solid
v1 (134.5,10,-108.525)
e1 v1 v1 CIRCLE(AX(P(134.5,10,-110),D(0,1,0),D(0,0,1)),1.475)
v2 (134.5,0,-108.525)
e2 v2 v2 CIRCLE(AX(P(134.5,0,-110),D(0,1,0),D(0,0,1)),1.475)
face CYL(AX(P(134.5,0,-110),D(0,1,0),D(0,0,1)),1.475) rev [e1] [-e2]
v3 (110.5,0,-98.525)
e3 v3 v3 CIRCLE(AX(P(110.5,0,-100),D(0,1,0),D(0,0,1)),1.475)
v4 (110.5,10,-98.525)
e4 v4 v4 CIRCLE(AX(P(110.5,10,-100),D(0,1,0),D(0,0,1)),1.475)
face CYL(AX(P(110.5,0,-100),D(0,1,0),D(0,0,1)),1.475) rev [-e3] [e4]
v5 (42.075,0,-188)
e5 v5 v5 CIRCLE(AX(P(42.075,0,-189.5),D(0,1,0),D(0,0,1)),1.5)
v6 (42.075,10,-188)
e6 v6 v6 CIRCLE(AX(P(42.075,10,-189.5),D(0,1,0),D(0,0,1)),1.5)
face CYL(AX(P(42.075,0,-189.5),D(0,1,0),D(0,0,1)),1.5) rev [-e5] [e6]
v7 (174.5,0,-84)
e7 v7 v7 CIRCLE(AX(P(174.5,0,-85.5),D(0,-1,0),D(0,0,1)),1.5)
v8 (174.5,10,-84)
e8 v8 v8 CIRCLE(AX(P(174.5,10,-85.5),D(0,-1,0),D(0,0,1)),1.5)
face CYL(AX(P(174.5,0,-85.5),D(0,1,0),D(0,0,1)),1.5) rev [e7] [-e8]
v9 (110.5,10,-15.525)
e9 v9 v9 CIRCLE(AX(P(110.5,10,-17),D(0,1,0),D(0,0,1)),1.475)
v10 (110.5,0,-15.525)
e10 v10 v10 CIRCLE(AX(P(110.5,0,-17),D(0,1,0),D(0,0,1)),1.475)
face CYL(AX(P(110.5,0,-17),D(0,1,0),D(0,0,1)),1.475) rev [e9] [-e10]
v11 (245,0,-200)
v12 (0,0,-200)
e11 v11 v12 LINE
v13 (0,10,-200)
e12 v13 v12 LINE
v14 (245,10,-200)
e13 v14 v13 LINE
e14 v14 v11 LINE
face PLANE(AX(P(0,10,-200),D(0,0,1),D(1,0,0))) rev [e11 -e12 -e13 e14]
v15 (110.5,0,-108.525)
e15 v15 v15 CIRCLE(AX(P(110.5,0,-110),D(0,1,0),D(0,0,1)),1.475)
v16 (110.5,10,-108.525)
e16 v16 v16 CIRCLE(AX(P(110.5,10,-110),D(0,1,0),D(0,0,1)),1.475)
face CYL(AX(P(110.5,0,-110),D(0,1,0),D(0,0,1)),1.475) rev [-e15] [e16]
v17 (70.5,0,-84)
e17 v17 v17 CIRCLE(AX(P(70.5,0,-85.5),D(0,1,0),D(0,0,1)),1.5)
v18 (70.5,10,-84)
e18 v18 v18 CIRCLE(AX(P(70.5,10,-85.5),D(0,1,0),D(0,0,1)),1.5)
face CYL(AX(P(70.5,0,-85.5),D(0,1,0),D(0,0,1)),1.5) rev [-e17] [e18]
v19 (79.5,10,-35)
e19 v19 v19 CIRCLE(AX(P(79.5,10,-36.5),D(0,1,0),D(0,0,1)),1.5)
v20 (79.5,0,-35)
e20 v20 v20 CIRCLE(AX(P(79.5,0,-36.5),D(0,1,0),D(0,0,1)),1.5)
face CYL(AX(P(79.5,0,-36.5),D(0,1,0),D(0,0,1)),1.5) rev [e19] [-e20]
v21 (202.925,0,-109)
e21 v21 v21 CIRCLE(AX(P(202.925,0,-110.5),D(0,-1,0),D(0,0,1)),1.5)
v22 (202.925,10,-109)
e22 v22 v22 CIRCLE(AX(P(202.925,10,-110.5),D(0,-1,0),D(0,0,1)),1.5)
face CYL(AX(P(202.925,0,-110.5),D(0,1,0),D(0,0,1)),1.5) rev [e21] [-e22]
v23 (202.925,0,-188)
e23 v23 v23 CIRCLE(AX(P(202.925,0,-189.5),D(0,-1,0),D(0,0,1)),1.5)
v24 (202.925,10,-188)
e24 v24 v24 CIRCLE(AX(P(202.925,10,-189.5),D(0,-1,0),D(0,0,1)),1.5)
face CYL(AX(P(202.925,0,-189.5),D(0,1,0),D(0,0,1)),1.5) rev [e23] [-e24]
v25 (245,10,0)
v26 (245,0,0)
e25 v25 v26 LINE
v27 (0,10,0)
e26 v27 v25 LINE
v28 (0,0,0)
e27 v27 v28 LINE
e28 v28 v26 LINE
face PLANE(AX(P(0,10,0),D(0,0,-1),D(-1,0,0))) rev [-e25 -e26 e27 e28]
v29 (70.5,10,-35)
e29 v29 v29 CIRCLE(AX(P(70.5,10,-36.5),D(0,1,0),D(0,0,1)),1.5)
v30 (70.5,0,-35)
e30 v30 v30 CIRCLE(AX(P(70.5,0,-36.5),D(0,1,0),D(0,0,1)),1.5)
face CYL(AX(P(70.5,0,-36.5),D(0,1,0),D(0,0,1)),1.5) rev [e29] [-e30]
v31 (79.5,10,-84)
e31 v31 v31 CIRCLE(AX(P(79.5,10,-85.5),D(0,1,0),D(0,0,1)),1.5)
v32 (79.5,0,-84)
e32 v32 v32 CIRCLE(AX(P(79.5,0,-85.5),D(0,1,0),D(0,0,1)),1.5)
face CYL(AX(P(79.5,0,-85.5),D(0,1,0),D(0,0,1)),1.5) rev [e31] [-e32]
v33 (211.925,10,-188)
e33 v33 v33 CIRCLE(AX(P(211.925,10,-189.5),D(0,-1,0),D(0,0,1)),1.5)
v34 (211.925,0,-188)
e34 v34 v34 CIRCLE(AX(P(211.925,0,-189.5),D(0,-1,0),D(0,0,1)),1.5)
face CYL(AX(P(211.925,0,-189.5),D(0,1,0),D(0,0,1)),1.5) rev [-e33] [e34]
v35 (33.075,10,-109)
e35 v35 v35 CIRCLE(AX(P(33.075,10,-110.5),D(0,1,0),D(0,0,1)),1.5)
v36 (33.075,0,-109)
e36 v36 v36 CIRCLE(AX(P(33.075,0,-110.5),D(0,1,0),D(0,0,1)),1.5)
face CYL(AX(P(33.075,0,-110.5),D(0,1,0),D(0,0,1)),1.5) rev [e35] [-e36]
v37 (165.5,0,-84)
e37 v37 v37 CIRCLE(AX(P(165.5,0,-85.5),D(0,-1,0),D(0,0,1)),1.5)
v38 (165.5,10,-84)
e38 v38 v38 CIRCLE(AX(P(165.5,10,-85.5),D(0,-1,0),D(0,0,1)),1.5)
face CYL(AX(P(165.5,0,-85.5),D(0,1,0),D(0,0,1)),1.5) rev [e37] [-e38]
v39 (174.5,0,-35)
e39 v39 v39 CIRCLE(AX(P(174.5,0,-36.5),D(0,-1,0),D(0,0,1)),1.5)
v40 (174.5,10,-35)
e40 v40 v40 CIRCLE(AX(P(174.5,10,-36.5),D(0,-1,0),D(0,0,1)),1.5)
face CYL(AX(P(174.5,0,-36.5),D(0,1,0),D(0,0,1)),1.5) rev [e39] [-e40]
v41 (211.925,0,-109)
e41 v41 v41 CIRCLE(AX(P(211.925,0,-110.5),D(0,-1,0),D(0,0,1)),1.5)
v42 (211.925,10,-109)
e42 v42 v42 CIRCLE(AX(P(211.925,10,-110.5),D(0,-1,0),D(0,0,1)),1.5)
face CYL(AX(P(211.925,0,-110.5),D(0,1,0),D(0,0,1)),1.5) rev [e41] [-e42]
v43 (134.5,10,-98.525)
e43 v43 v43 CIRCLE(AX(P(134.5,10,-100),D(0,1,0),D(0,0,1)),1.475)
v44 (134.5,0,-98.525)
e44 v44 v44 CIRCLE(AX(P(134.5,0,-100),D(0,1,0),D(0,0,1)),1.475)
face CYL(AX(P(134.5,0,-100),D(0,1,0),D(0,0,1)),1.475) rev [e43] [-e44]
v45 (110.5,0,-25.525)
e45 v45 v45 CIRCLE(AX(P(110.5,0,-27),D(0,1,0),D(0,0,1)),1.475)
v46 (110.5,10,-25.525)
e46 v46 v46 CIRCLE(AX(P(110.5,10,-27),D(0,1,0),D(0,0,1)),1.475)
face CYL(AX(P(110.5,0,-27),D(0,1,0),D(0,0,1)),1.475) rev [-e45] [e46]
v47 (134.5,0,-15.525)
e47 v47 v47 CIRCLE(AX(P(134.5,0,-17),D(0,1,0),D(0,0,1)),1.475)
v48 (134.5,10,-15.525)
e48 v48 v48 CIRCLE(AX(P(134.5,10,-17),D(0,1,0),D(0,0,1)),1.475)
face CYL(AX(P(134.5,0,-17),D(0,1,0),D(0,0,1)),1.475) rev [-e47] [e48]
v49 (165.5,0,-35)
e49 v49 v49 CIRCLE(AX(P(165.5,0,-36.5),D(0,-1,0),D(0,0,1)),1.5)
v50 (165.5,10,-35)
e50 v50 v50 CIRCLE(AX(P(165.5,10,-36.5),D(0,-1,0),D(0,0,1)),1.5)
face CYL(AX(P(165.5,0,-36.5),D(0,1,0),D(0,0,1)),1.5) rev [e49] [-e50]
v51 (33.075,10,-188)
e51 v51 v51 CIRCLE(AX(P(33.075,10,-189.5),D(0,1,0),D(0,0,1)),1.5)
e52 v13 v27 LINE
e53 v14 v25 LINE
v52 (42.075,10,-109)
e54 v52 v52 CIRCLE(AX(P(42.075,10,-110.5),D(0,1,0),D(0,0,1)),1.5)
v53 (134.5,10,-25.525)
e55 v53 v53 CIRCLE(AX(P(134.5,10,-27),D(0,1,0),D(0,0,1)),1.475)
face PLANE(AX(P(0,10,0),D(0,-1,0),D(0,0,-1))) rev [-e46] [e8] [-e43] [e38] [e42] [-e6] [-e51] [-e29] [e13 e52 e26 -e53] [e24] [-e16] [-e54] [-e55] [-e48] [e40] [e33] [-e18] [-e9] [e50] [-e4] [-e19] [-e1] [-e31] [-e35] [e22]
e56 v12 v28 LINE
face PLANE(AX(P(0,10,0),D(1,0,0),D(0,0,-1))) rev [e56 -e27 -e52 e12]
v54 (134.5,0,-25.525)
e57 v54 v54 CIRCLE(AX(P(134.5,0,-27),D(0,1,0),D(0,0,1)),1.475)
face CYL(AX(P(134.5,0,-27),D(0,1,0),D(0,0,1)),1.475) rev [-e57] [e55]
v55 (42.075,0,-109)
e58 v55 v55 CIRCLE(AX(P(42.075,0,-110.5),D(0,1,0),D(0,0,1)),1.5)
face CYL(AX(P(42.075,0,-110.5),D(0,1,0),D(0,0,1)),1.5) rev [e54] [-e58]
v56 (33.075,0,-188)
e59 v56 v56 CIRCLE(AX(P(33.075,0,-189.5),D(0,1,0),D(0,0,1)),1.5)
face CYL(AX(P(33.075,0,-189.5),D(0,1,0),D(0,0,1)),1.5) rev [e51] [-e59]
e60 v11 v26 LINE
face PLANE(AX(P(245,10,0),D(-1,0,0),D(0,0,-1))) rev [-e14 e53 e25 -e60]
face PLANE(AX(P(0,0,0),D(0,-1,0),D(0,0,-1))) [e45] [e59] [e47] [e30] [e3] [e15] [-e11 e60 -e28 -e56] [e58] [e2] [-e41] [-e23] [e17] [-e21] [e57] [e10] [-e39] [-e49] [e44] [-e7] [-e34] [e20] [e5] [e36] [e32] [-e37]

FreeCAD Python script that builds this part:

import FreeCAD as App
import Part
import Sketcher

V = App.Vector
Q = App.Units.Quantity

doc = App.newDocument("Part")
body = doc.addObject("PartDesign::Body", "Body")

sketch1 = body.newObject("Sketcher::SketchObject", "Sketch")
sketch1.AttachmentSupport = (doc.getObject("XZ_Plane"), [""])
sketch1.MapMode = "FlatFace"
sketch1.addGeometry(Part.LineSegment(V(0, -200, 0), V(0, 0, 0)), False)
sketch1.addGeometry(Part.LineSegment(V(0, 0, 0), V(122, 0, 0)), False)
sketch1.addGeometry(Part.LineSegment(V(122, 0, 0), V(122, -200, 0)), False)
sketch1.addGeometry(Part.LineSegment(V(122, -200, 0), V(0, -200, 0)), False)
sketch1.addConstraint(Sketcher.Constraint("Coincident", 0, 2, 1, 1))
sketch1.addConstraint(Sketcher.Constraint("Coincident", 1, 2, 2, 1))
sketch1.addConstraint(Sketcher.Constraint("Coincident", 2, 2, 3, 1))
sketch1.addConstraint(Sketcher.Constraint("Coincident", 3, 2, 0, 1))
sketch1.addConstraint(Sketcher.Constraint("Vertical", 0))
sketch1.addConstraint(Sketcher.Constraint("Horizontal", 1))
sketch1.addConstraint(Sketcher.Constraint("Vertical", 2))
sketch1.addConstraint(Sketcher.Constraint("Horizontal", 3))
sketch1.addConstraint(Sketcher.Constraint("Coincident", 0, 2, -1, 1))
sketch1.addConstraint(Sketcher.Constraint("DistanceY", 0, 1, 0, 2, Q("200 mm")))
sketch1.addConstraint(Sketcher.Constraint("DistanceX", 1, 1, 1, 2, Q("122.5 mm")))
pad1 = body.newObject("PartDesign::Pad", "Pad")
pad1.Profile = sketch1
pad1.Length = 10
pad1.Reversed = True

sketch2 = body.newObject("Sketcher::SketchObject", "Sketch001")
sketch2.AttachmentSupport = (doc.getObject("XZ_Plane"), [""])
sketch2.MapMode = "FlatFace"
sketch2.AttachmentOffset = App.Placement(V(0, 0, -10), App.Rotation())
sketch2.addGeometry(Part.Circle(V(33.1, -189.5, 0), V(0, 0, 1), 1.5), False)
sketch2.addGeometry(Part.Circle(V(42.1, -189.5, 0), V(0, 0, 1), 1.5), False)
sketch2.addGeometry(Part.Circle(V(33.1, -110.5, 0), V(0, 0, 1), 1.5), False)
sketch2.addGeometry(Part.Circle(V(42.1, -110.5, 0), V(0, 0, 1), 1.5), False)
sketch2.addGeometry(Part.Circle(V(70.5, -85.5, 0), V(0, 0, 1), 1.5), False)
sketch2.addGeometry(Part.Circle(V(79.5, -85.5, 0), V(0, 0, 1), 1.5), False)
sketch2.addGeometry(Part.Circle(V(70.5, -36.5, 0), V(0, 0, 1), 1.5), False)
sketch2.addGeometry(Part.Circle(V(79.5, -36.5, 0), V(0, 0, 1), 1.5), False)
sketch2.addConstraint(Sketcher.Constraint("Equal", 0, 1))
sketch2.addConstraint(Sketcher.Constraint("Equal", 1, 2))
sketch2.addConstraint(Sketcher.Constraint("Equal", 2, 3))
sketch2.addConstraint(Sketcher.Constraint("Equal", 3, 4))
sketch2.addConstraint(Sketcher.Constraint("Equal", 4, 5))
sketch2.addConstraint(Sketcher.Constraint("Equal", 5, 6))
sketch2.addConstraint(Sketcher.Constraint("Equal", 6, 7))
sketch2.addConstraint(Sketcher.Constraint("Horizontal", 0, 3, 1, 3))
sketch2.addConstraint(Sketcher.Constraint("Horizontal", 2, 3, 3, 3))
sketch2.addConstraint(Sketcher.Constraint("Horizontal", 4, 3, 5, 3))
sketch2.addConstraint(Sketcher.Constraint("Horizontal", 6, 3, 7, 3))
sketch2.addConstraint(Sketcher.Constraint("Vertical", 0, 3, 2, 3))
sketch2.addConstraint(Sketcher.Constraint("Vertical", 1, 3, 3, 3))
sketch2.addConstraint(Sketcher.Constraint("Vertical", 4, 3, 6, 3))
sketch2.addConstraint(Sketcher.Constraint("Vertical", 5, 3, 7, 3))
sketch2.addConstraint(Sketcher.Constraint("Diameter", 0, Q("3 mm")))
sketch2.addConstraint(Sketcher.Constraint("DistanceX", 0, 3, 1, 3, Q("9 mm")))
sketch2.addConstraint(Sketcher.Constraint("DistanceY", 0, 3, 2, 3, Q("79 mm")))
sketch2.addConstraint(Sketcher.Constraint("DistanceY", 3, 3, 4, 3, Q("25 mm")))
sketch2.addConstraint(Sketcher.Constraint("DistanceX", 4, 3, 5, 3, Q("9 mm")))
sketch2.addConstraint(Sketcher.Constraint("DistanceY", 4, 3, 6, 3, Q("49 mm")))
sketch2.addConstraint(Sketcher.Constraint("DistanceY", 0, 3, -1, 1, Q("189.5 mm")))
sketch2.addConstraint(Sketcher.Constraint("DistanceX", -1, 1, 4, 3, Q("70.5 mm")))
sketch2.addConstraint(Sketcher.Constraint("DistanceX", -1, 1, 0, 3, Q("33.075 mm")))
pocket1 = body.newObject("PartDesign::Pocket", "Pocket")
pocket1.Profile = sketch2
pocket1.Length = 10
pocket1.Reversed = True
body2 = doc.addObject("PartDesign::Body", "Body001")
doc.recompute()

body2.BaseFeature = body
doc.recompute()

mirroring = doc.addObject("Part::Mirroring", "Mirroring")
mirroring.Source = body
mirroring.Base = V(122.5, 10, 0)
mirroring.Normal = V(-1, 0, 0)
body3 = doc.addObject("PartDesign::Body", "Body002")
body3.BaseFeature = mirroring
boolean = body2.newObject("PartDesign::Boolean", "Boolean")
boolean.Type = "Fuse"
boolean.addObjects([body3])
doc.recompute()

sketch3 = body2.newObject("Sketcher::SketchObject", "Sketch002")
sketch3.AttachmentSupport = (doc.getObject("XZ_Plane001"), [""])
sketch3.MapMode = "FlatFace"
sketch3.AttachmentOffset = App.Placement(V(0, 0, -10), App.Rotation())
sketch3.addGeometry(Part.Circle(V(134.5, -110, 0), V(0, 0, 1), 1.5), False)
sketch3.addGeometry(Part.Circle(V(110.5, -110, 0), V(0, 0, 1), 1.5), False)
sketch3.addGeometry(Part.Circle(V(110.5, -100, 0), V(0, 0, 1), 1.5), False)
sketch3.addGeometry(Part.Circle(V(134.5, -100, 0), V(0, 0, 1), 1.5), False)
sketch3.addGeometry(Part.Circle(V(110.5, -27, 0), V(0, 0, 1), 1.5), False)
sketch3.addGeometry(Part.Circle(V(134.5, -27, 0), V(0, 0, 1), 1.5), False)
sketch3.addGeometry(Part.Circle(V(134.5, -17, 0), V(0, 0, 1), 1.5), False)
sketch3.addGeometry(Part.Circle(V(110.5, -17, 0), V(0, 0, 1), 1.5), False)
sketch3.addConstraint(Sketcher.Constraint("Equal", 0, 1))
sketch3.addConstraint(Sketcher.Constraint("Equal", 1, 2))
sketch3.addConstraint(Sketcher.Constraint("Equal", 2, 3))
sketch3.addConstraint(Sketcher.Constraint("Equal", 3, 4))
sketch3.addConstraint(Sketcher.Constraint("Equal", 4, 5))
sketch3.addConstraint(Sketcher.Constraint("Equal", 5, 6))
sketch3.addConstraint(Sketcher.Constraint("Equal", 6, 7))
sketch3.addConstraint(Sketcher.Constraint("Horizontal", 0, 3, 1, 3))
sketch3.addConstraint(Sketcher.Constraint("Horizontal", 2, 3, 3, 3))
sketch3.addConstraint(Sketcher.Constraint("Horizontal", 4, 3, 5, 3))
sketch3.addConstraint(Sketcher.Constraint("Horizontal", 6, 3, 7, 3))
sketch3.addConstraint(Sketcher.Constraint("Vertical", 1, 3, 2, 3))
sketch3.addConstraint(Sketcher.Constraint("Vertical", 0, 3, 3, 3))
sketch3.addConstraint(Sketcher.Constraint("Vertical", 2, 3, 4, 3))
sketch3.addConstraint(Sketcher.Constraint("Vertical", 3, 3, 5, 3))
sketch3.addConstraint(Sketcher.Constraint("Vertical", 5, 3, 6, 3))
sketch3.addConstraint(Sketcher.Constraint("Vertical", 4, 3, 7, 3))
sketch3.addConstraint(Sketcher.Constraint("Diameter", 0, Q("2.95 mm")))
sketch3.addConstraint(Sketcher.Constraint("DistanceY", 0, 3, -1, 1, Q("110 mm")))
sketch3.addConstraint(Sketcher.Constraint("DistanceY", 2, 3, -1, 1, Q("100 mm")))
sketch3.addConstraint(Sketcher.Constraint("DistanceY", 4, 3, -1, 1, Q("27 mm")))
sketch3.addConstraint(Sketcher.Constraint("DistanceY", 6, 3, -1, 1, Q("17 mm")))
sketch3.addConstraint(Sketcher.Constraint("DistanceX", 1, 3, 0, 3, Q("24 mm")))
sketch3.addConstraint(Sketcher.Constraint("DistanceX", -1, 1, 0, 3, Q("134.5 mm")))
pocket2 = body2.newObject("PartDesign::Pocket", "Pocket001")
pocket2.Profile = sketch3
pocket2.Length = 10
pocket2.Reversed = True
mirroring.Visibility = False

doc.recompute()
